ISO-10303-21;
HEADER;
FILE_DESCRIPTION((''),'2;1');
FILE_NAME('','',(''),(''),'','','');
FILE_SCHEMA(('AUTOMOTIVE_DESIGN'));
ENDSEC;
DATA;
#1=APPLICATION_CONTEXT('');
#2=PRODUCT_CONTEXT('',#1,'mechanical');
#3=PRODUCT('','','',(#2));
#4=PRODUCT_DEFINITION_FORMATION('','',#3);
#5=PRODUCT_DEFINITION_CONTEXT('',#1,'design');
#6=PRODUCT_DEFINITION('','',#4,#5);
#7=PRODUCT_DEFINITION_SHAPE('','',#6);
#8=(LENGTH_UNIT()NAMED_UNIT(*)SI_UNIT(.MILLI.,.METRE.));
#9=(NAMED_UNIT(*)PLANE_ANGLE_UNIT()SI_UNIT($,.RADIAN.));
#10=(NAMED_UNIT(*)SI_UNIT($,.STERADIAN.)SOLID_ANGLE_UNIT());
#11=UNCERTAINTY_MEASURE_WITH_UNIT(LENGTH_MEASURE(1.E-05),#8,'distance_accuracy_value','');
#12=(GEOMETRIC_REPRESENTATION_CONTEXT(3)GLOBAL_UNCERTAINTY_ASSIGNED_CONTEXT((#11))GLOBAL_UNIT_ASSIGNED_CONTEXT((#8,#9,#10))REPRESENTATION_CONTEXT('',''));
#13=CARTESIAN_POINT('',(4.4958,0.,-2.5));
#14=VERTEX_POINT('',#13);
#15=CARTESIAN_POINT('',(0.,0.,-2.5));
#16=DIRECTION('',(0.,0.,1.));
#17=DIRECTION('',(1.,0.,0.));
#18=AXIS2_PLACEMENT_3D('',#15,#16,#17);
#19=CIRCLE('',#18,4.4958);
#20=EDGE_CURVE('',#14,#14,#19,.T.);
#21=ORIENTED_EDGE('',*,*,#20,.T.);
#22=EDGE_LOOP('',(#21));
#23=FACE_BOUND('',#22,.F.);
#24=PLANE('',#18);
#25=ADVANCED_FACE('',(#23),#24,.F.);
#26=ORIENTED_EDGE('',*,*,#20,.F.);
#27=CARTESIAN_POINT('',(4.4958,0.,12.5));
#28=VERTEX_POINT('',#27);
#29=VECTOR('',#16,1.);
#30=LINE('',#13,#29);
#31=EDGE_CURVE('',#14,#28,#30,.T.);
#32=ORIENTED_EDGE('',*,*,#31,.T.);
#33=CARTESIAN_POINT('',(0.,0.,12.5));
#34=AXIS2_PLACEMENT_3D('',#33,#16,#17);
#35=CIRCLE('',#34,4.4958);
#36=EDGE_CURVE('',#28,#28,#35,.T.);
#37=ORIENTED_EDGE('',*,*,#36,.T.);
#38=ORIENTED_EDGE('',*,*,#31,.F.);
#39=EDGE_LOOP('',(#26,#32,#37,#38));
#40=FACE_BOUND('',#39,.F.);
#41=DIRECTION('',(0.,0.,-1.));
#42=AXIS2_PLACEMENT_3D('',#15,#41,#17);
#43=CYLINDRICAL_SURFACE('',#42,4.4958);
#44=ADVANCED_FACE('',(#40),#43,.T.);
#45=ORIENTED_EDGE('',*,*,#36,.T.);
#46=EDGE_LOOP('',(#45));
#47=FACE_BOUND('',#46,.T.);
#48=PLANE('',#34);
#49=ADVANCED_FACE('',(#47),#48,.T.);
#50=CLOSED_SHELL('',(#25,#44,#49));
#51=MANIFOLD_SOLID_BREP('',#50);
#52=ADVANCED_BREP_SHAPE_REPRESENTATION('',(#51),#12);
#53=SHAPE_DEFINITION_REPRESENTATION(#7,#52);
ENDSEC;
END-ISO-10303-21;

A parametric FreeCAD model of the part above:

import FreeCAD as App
import Part
import Sketcher
from FreeCAD import Vector

doc = App.newDocument("Part")
body = doc.addObject("PartDesign::Body", "Body")

sketch1 = body.newObject("Sketcher::SketchObject", "Sketch")
sketch1.AttachmentSupport = (doc.getObject("XY_Plane"), [""])
sketch1.MapMode = "FlatFace"
sketch1.AttachmentOffset = App.Placement(Vector(0, 0, -2.5), App.Rotation())
sketch1.addGeometry(Part.Circle(Vector(0, 0, 0), Vector(0, 0, 1), 4.5), False)
sketch1.addConstraint([
    Sketcher.Constraint("Coincident", 0, 3, -1, 1),
    Sketcher.Constraint("Diameter", 0, 8.9916),
])
pad1 = body.newObject("PartDesign::Pad", "Pad")
pad1.Profile = sketch1
pad1.Length = 15

doc.recompute()
